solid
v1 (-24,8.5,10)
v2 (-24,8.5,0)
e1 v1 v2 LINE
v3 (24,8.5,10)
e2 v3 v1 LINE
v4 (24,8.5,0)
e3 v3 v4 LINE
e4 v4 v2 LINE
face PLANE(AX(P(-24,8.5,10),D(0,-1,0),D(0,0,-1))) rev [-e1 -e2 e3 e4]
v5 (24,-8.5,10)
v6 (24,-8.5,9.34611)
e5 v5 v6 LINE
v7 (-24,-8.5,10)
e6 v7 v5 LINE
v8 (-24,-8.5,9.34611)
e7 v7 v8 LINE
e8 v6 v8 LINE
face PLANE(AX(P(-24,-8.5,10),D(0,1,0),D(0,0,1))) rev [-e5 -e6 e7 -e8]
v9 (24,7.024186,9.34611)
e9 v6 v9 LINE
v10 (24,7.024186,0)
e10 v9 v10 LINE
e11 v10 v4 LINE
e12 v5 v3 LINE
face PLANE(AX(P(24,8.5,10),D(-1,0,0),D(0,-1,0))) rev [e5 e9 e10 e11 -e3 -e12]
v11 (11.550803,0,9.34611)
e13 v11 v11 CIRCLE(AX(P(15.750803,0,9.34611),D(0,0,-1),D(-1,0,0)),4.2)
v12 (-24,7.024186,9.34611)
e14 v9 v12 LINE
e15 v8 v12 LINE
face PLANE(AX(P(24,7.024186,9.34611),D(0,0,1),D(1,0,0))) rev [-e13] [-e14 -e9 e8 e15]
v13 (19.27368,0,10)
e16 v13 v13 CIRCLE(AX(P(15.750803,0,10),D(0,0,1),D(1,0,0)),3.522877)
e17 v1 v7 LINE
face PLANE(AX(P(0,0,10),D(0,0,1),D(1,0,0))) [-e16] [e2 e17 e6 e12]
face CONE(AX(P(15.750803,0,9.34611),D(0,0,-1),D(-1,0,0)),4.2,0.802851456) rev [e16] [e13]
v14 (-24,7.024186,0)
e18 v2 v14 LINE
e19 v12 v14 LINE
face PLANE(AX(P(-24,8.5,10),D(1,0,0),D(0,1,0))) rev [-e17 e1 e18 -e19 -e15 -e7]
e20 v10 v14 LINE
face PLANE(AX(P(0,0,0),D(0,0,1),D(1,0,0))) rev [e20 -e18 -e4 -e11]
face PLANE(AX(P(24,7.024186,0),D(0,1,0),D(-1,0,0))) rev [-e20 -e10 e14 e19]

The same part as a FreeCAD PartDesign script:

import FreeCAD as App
import Part
import Sketcher

V = App.Vector
Q = App.Units.Quantity


def add_polygon(sketch, points):
    """Adds a closed chain of lines whose ends are joined by coincident constraints."""
    first, n = sketch.GeometryCount, len(points)
    for a, b in zip(points, points[1:] + points[:1]):
        sketch.addGeometry(Part.LineSegment(App.Vector(*a, 0), App.Vector(*b, 0)), False)
    for i in range(n):
        sketch.addConstraint(Sketcher.Constraint("Coincident", first + i, 2, first + (i + 1) % n, 1))

doc = App.newDocument("Part")
body = doc.addObject("PartDesign::Body", "Body")

sketch1 = body.newObject("Sketcher::SketchObject", "Sketch")
sketch1.AttachmentSupport = (doc.getObject("XY_Plane"), [""])
sketch1.MapMode = "FlatFace"
add_polygon(sketch1, [(-24, 8), (-24, -8), (24, -8), (24, 8)])
sketch1.addConstraint([
    Sketcher.Constraint("Vertical", 0),
    Sketcher.Constraint("Horizontal", 1),
    Sketcher.Constraint("Vertical", 2),
    Sketcher.Constraint("Horizontal", 3),
    Sketcher.Constraint("Symmetric", 0, 2, 2, 2, -1, 1),
    Sketcher.Constraint("DistanceX", 1, 1, 1, 2, 48.0),
    Sketcher.Constraint("DistanceY", 0, 2, 0, 1, 17.0),
])
pad1 = body.newObject("PartDesign::Pad", "Pad")
pad1.Profile = sketch1
pad1.Length = 10

sketch2 = body.newObject("Sketcher::SketchObject", "Sketch001")
sketch2.AttachmentSupport = (doc.getObject("YZ_Plane"), [""])
sketch2.MapMode = "FlatFace"
sketch2.AttachmentOffset = App.Placement(V(0, 0, -24), App.Rotation())
add_polygon(sketch2, [(7, 0), (-8, 0), (-8, 9), (7, 9)])
sketch2.addConstraint([
    Sketcher.Constraint("Horizontal", 0),
    Sketcher.Constraint("Vertical", 1),
    Sketcher.Constraint("Horizontal", 2),
    Sketcher.Constraint("Vertical", 3),
    Sketcher.Constraint("PointOnObject", 0, 2, -1),
    Sketcher.Constraint("DistanceX", 0, 2, -1, 1, 8.5),
    Sketcher.Constraint("DistanceY", 1, 1, 1, 2, 9.34611),
    Sketcher.Constraint("DistanceX", 0, 2, 0, 1, 15.524186),
])
pocket1 = body.newObject("PartDesign::Pocket", "Pocket")
pocket1.Profile = sketch2
pocket1.Type = "ThroughAll"
pocket1.Reversed = True

sketch3 = body.newObject("Sketcher::SketchObject", "Sketch002")
sketch3.AttachmentSupport = (doc.getObject("YZ_Plane"), [""])
sketch3.MapMode = "FlatFace"
sketch3.AttachmentOffset = App.Placement(V(0, 0, 15.750803), App.Rotation())
add_polygon(sketch3, [(0, 10), (0, 9.3), (4.2, 9.3), (1.9, 11.5), (1.9, 10)])
sketch3.addConstraint([
    Sketcher.Constraint("Vertical", 0),
    Sketcher.Constraint("Horizontal", 1),
    Sketcher.Constraint("Vertical", 3),
    Sketcher.Constraint("Horizontal", 4),
    Sketcher.Constraint("PointOnObject", 0, 2, -2),
    Sketcher.Constraint("Angle", 2, Q("136 deg")),
    Sketcher.Constraint("DistanceX", 1, 1, 1, 2, 4.2),
    Sketcher.Constraint("DistanceY", -1, 1, 3, 2, 10.0),
    Sketcher.Constraint("DistanceX", 4, 2, 4, 1, 1.95),
    Sketcher.Constraint("DistanceY", 0, 2, 0, 1, 0.65389),
])
groove = body.newObject("PartDesign::Groove", "Groove")
groove.Profile = sketch3
groove.ReferenceAxis = (sketch3, ["V_Axis"])
groove.Angle = 360

doc.recompute()
